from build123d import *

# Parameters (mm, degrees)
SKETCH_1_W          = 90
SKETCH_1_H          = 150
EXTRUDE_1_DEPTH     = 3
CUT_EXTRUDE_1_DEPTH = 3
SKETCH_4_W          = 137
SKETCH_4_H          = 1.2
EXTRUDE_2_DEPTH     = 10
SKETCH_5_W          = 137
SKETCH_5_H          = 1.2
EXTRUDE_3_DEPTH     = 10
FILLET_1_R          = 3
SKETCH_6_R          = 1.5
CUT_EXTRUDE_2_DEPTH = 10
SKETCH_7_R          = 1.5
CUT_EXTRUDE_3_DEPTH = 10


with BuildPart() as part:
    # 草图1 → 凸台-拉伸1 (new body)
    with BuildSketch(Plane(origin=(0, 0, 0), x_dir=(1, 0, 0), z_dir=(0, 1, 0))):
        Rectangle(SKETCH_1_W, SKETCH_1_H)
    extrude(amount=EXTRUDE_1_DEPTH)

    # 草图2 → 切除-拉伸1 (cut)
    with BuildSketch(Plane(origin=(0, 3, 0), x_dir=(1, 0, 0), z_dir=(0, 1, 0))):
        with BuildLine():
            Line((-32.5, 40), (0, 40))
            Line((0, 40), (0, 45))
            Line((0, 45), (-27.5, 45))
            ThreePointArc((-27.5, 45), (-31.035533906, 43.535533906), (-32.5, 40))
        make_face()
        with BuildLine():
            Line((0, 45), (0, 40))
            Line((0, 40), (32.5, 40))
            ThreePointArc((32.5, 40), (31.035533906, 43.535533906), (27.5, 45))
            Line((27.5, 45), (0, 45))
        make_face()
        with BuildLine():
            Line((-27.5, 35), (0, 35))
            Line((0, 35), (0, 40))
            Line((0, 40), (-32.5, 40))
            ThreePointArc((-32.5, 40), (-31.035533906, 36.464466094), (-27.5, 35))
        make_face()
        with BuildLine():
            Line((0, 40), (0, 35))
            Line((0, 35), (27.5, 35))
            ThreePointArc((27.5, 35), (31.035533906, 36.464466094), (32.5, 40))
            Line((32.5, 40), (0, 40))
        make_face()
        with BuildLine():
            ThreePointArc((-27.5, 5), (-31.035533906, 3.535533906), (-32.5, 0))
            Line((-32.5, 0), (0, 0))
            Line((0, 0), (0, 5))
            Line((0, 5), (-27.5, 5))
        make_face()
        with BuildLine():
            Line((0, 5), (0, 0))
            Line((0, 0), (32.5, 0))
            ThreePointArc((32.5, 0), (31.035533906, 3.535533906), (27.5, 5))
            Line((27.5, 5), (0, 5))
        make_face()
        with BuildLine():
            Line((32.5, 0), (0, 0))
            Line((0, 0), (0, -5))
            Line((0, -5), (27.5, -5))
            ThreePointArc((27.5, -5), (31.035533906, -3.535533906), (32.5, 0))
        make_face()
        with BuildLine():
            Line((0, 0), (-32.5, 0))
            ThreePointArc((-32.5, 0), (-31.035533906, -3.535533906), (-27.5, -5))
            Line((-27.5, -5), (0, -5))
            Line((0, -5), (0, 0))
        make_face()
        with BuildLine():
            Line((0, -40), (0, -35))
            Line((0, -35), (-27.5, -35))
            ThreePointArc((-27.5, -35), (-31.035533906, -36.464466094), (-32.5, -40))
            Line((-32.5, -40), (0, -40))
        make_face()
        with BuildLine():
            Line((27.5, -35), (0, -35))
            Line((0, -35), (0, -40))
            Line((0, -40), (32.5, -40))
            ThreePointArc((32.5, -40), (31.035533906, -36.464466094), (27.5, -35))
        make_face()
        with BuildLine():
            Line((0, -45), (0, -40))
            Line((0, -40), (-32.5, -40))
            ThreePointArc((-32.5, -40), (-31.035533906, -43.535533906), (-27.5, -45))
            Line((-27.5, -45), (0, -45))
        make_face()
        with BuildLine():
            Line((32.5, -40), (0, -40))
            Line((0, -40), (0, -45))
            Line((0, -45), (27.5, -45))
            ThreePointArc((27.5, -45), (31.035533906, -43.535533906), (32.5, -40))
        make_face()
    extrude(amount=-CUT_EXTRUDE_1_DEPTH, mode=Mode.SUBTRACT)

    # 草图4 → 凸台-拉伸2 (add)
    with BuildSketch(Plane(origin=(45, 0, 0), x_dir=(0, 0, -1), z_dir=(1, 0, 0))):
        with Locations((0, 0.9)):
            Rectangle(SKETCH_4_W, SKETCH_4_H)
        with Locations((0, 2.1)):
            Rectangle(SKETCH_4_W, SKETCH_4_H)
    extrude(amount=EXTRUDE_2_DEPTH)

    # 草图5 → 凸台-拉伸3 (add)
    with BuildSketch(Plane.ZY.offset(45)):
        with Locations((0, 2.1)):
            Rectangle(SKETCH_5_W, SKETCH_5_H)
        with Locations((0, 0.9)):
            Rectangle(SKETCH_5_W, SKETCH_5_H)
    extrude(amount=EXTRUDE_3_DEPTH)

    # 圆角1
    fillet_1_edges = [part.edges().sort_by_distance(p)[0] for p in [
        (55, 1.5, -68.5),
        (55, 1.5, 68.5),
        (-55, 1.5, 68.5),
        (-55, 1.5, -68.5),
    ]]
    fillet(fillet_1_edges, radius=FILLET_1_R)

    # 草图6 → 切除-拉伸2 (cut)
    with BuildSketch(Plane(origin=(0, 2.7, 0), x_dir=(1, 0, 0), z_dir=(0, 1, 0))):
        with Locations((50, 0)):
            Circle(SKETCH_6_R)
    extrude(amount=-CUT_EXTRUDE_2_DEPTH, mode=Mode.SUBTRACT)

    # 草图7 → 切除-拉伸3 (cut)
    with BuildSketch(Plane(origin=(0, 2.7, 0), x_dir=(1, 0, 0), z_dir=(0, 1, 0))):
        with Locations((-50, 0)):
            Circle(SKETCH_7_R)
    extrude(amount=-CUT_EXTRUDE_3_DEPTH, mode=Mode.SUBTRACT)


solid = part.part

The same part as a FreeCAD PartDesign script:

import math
import FreeCAD as App
import Part
import Sketcher

V = App.Vector
Q = App.Units.Quantity


def edges_at(feature, points):
    """Names of the edges that pass closest to the given points."""
    edges = feature.Shape.Edges
    near = lambda p: min(range(len(edges)), key=lambda i: edges[i].distToShape(Part.Vertex(*p))[0])
    return sorted({f"Edge{near(p) + 1}" for p in points})

doc = App.newDocument("Part")
params = doc.addObject("Spreadsheet::Sheet", "Params")
for row, (alias, value) in enumerate([
    ("sketch1_width", "90 mm"),
    ("sketch1_height", "150 mm"),
    ("pad1_length", "3 mm"),
    ("sketch2_radius", "5 mm"),
    ("sketch2_width", "55 mm"),
    ("pocket1_length", "3 mm"),
    ("sketch3_height", "137 mm"),
    ("sketch3_width", "2.4 mm"),
    ("pad2_length", "10 mm"),
    ("sketch4_height", "137 mm"),
    ("sketch4_width", "2.4 mm"),
    ("pad3_length", "10 mm"),
    ("fillet_radius", "3 mm"),
    ("sketch5_diameter", "3 mm"),
    ("pocket2_length", "10 mm"),
    ("sketch6_diameter", "3 mm"),
    ("pocket3_length", "10 mm"),
], start=1):
    params.set(f"A{row}", alias)
    params.set(f"B{row}", "=" + value)
    params.setAlias(f"B{row}", alias)

body = doc.addObject("PartDesign::Body", "Body")

# Sketch on XZ plane
sketch1 = body.newObject("Sketcher::SketchObject", "Sketch")
sketch1.AttachmentSupport = (doc.getObject("XZ_Plane"), [""])
sketch1.MapMode = "FlatFace"
sketch1.addGeometry([
    Part.LineSegment(V(-45, -75, 0), V(-45, 75, 0)),
    Part.LineSegment(V(-45, 75, 0), V(45, 75, 0)),
    Part.LineSegment(V(45, 75, 0), V(45, -75, 0)),
    Part.LineSegment(V(45, -75, 0), V(-45, -75, 0)),
], False)
sketch1.addConstraint([
    Sketcher.Constraint("Coincident", 0, 2, 1, 1),
    Sketcher.Constraint("Coincident", 1, 2, 2, 1),
    Sketcher.Constraint("Coincident", 2, 2, 3, 1),
    Sketcher.Constraint("Coincident", 3, 2, 0, 1),
    Sketcher.Constraint("Vertical", 0),
    Sketcher.Constraint("Horizontal", 1),
    Sketcher.Constraint("Vertical", 2),
    Sketcher.Constraint("Horizontal", 3),
    Sketcher.Constraint("Symmetric", 0, 2, 2, 2, -1, 1),
    Sketcher.Constraint("DistanceX", 1, 1, 1, 2, Q("90 mm")),
    Sketcher.Constraint("DistanceY", 0, 1, 0, 2, Q("150 mm")),
])
sketch1.setExpression("Constraints[9]", "Params.sketch1_width")
sketch1.setExpression("Constraints[10]", "Params.sketch1_height")
pad1 = body.newObject("PartDesign::Pad", "Pad")
pad1.Profile = sketch1
pad1.setExpression("Length", "Params.pad1_length")
pad1.Reversed = True

# Sketch on XZ plane
sketch2 = body.newObject("Sketcher::SketchObject", "Sketch001")
sketch2.AttachmentSupport = (doc.getObject("XZ_Plane"), [""])
sketch2.MapMode = "FlatFace"
sketch2.AttachmentOffset = App.Placement(V(0, 0, -3), App.Rotation())
sketch2.addGeometry([
    Part.ArcOfCircle(Part.Circle(V(28, -40, 0), V(0, 0, 1), 5), math.radians(-90), math.radians(0)),  # 0
    Part.LineSegment(V(28, -45, 0), V(-28, -45, 0)),  # 1
    Part.ArcOfCircle(Part.Circle(V(-28, -40, 0), V(0, 0, 1), 5), math.radians(180), math.radians(270)),  # 2
    Part.ArcOfCircle(Part.Circle(V(-28, -40, 0), V(0, 0, 1), 5), math.radians(90), math.radians(180)),  # 3
    Part.LineSegment(V(-28, -35, 0), V(28, -35, 0)),  # 4
    Part.ArcOfCircle(Part.Circle(V(28, -40, 0), V(0, 0, 1), 5), math.radians(0), math.radians(90)),  # 5
    Part.ArcOfCircle(Part.Circle(V(-28, 0, 0), V(0, 0, 1), 5), math.radians(180), math.radians(270)),  # 6
    Part.ArcOfCircle(Part.Circle(V(-28, 0, 0), V(0, 0, 1), 5), math.radians(90), math.radians(180)),  # 7
    Part.LineSegment(V(-28, 5, 0), V(28, 5, 0)),  # 8
    Part.ArcOfCircle(Part.Circle(V(28, 0, 0), V(0, 0, 1), 5), math.radians(0), math.radians(90)),  # 9
    Part.ArcOfCircle(Part.Circle(V(28, 0, 0), V(0, 0, 1), 5), math.radians(-90), math.radians(0)),  # 10
    Part.LineSegment(V(28, -5, 0), V(-28, -5, 0)),  # 11
    Part.ArcOfCircle(Part.Circle(V(-28, 40, 0), V(0, 0, 1), 5), math.radians(180), math.radians(270)),  # 12
    Part.ArcOfCircle(Part.Circle(V(-28, 40, 0), V(0, 0, 1), 5), math.radians(90), math.radians(180)),  # 13
    Part.LineSegment(V(-28, 45, 0), V(28, 45, 0)),  # 14
    Part.ArcOfCircle(Part.Circle(V(28, 40, 0), V(0, 0, 1), 5), math.radians(0), math.radians(90)),  # 15
    Part.ArcOfCircle(Part.Circle(V(28, 40, 0), V(0, 0, 1), 5), math.radians(-90), math.radians(0)),  # 16
    Part.LineSegment(V(28, 35, 0), V(-28, 35, 0)),  # 17
], False)
sketch2.addConstraint([
    Sketcher.Constraint("Tangent", 0, 1, 1, 1),
    Sketcher.Constraint("Tangent", 1, 2, 2, 2),
    Sketcher.Constraint("Tangent", 2, 1, 3, 2),
    Sketcher.Constraint("Tangent", 3, 1, 4, 1),
    Sketcher.Constraint("Tangent", 4, 2, 5, 2),
    Sketcher.Constraint("Tangent", 5, 1, 0, 2),
    Sketcher.Constraint("Tangent", 6, 1, 7, 2),
    Sketcher.Constraint("Tangent", 7, 1, 8, 1),
    Sketcher.Constraint("Tangent", 8, 2, 9, 2),
    Sketcher.Constraint("Tangent", 9, 1, 10, 2),
    Sketcher.Constraint("Tangent", 10, 1, 11, 1),
    Sketcher.Constraint("Tangent", 11, 2, 6, 2),
    Sketcher.Constraint("Tangent", 12, 1, 13, 2),
    Sketcher.Constraint("Tangent", 13, 1, 14, 1),
    Sketcher.Constraint("Tangent", 14, 2, 15, 2),
    Sketcher.Constraint("Tangent", 15, 1, 16, 2),
    Sketcher.Constraint("Tangent", 16, 1, 17, 1),
    Sketcher.Constraint("Tangent", 17, 2, 12, 2),
    Sketcher.Constraint("Horizontal", 1),
    Sketcher.Constraint("Horizontal", 4),
    Sketcher.Constraint("Horizontal", 8),
    Sketcher.Constraint("Horizontal", 11),
    Sketcher.Constraint("Horizontal", 14),
    Sketcher.Constraint("Horizontal", 17),
    Sketcher.Constraint("Equal", 0, 2),
    Sketcher.Constraint("Equal", 2, 3),
    Sketcher.Constraint("Equal", 5, 6),
    Sketcher.Constraint("Equal", 6, 7),
    Sketcher.Constraint("Equal", 7, 9),
    Sketcher.Constraint("Equal", 10, 12),
    Sketcher.Constraint("Equal", 12, 13),
    Sketcher.Constraint("Equal", 13, 15),
    Sketcher.Constraint("Symmetric", 6, 3, 9, 3, -1, 1),
    Sketcher.Constraint("Symmetric", 0, 3, 12, 3, -1, 1),
    Sketcher.Constraint("Symmetric", 2, 1, 15, 1, -1, 1),
    Sketcher.Constraint("Symmetric", 2, 1, 5, 1, -2),
    Sketcher.Constraint("PointOnObject", 6, 1, -1),
    Sketcher.Constraint("PointOnObject", 9, 1, -1),
    Sketcher.Constraint("Horizontal", 5, 3, 2, 1),
    Sketcher.Constraint("Horizontal", 16, 3, 12, 1),
    Sketcher.Constraint("Vertical", 3, 3, 6, 3),
    Sketcher.Constraint("Radius", 0, Q("5 mm")),
    Sketcher.Constraint("DistanceX", 1, 2, 1, 1, Q("55 mm")),
    Sketcher.Constraint("DistanceY", 0, 3, -1, 1, Q("40 mm")),
])
sketch2.setExpression("Constraints[41]", "Params.sketch2_radius")
sketch2.setExpression("Constraints[42]", "Params.sketch2_width")
pocket1 = body.newObject("PartDesign::Pocket", "Pocket")
pocket1.Profile = sketch2
pocket1.setExpression("Length", "Params.pocket1_length")
pocket1.Reversed = True

# Sketch on YZ plane
sketch3 = body.newObject("Sketcher::SketchObject", "Sketch002")
sketch3.AttachmentSupport = (doc.getObject("YZ_Plane"), [""])
sketch3.MapMode = "FlatFace"
sketch3.AttachmentOffset = App.Placement(V(0, 0, 45), App.Rotation())
sketch3.addGeometry([
    Part.LineSegment(V(0.3, 68.5, 0), V(0.3, -68.5, 0)),
    Part.LineSegment(V(0.3, -68.5, 0), V(2.7, -68.5, 0)),
    Part.LineSegment(V(2.7, -68.5, 0), V(2.7, 68.5, 0)),
    Part.LineSegment(V(2.7, 68.5, 0), V(0.3, 68.5, 0)),
], False)
sketch3.addConstraint([
    Sketcher.Constraint("Coincident", 0, 2, 1, 1),
    Sketcher.Constraint("Coincident", 1, 2, 2, 1),
    Sketcher.Constraint("Coincident", 2, 2, 3, 1),
    Sketcher.Constraint("Coincident", 3, 2, 0, 1),
    Sketcher.Constraint("Vertical", 0),
    Sketcher.Constraint("Horizontal", 1),
    Sketcher.Constraint("Vertical", 2),
    Sketcher.Constraint("Horizontal", 3),
    Sketcher.Constraint("DistanceY", 0, 2, 0, 1, Q("137 mm")),
    Sketcher.Constraint("DistanceX", 1, 1, 1, 2, Q("2.4 mm")),
    Sketcher.Constraint("DistanceX", -1, 1, 0, 2, Q("0.3 mm")),
    Sketcher.Constraint("DistanceY", 0, 2, -1, 1, Q("68.5 mm")),
])
sketch3.setExpression("Constraints[8]", "Params.sketch3_height")
sketch3.setExpression("Constraints[9]", "Params.sketch3_width")
pad2 = body.newObject("PartDesign::Pad", "Pad001")
pad2.Profile = sketch3
pad2.setExpression("Length", "Params.pad2_length")

# Sketch on YZ plane
sketch4 = body.newObject("Sketcher::SketchObject", "Sketch003")
sketch4.AttachmentSupport = (doc.getObject("YZ_Plane"), [""])
sketch4.MapMode = "FlatFace"
sketch4.AttachmentOffset = App.Placement(V(0, 0, -45), App.Rotation())
sketch4.addGeometry([
    Part.LineSegment(V(2.7, -68.5, 0), V(0.3, -68.5, 0)),
    Part.LineSegment(V(0.3, -68.5, 0), V(0.3, 68.5, 0)),
    Part.LineSegment(V(0.3, 68.5, 0), V(2.7, 68.5, 0)),
    Part.LineSegment(V(2.7, 68.5, 0), V(2.7, -68.5, 0)),
], False)
sketch4.addConstraint([
    Sketcher.Constraint("Coincident", 0, 2, 1, 1),
    Sketcher.Constraint("Coincident", 1, 2, 2, 1),
    Sketcher.Constraint("Coincident", 2, 2, 3, 1),
    Sketcher.Constraint("Coincident", 3, 2, 0, 1),
    Sketcher.Constraint("Horizontal", 0),
    Sketcher.Constraint("Vertical", 1),
    Sketcher.Constraint("Horizontal", 2),
    Sketcher.Constraint("Vertical", 3),
    Sketcher.Constraint("DistanceY", 1, 1, 1, 2, Q("137 mm")),
    Sketcher.Constraint("DistanceX", 0, 2, 0, 1, Q("2.4 mm")),
    Sketcher.Constraint("DistanceX", -1, 1, 0, 2, Q("0.3 mm")),
    Sketcher.Constraint("DistanceY", 0, 2, -1, 1, Q("68.5 mm")),
])
sketch4.setExpression("Constraints[8]", "Params.sketch4_height")
sketch4.setExpression("Constraints[9]", "Params.sketch4_width")
pad3 = body.newObject("PartDesign::Pad", "Pad002")
pad3.Profile = sketch4
pad3.setExpression("Length", "Params.pad3_length")
pad3.Reversed = True
doc.recompute()

fillet = body.newObject("PartDesign::Fillet", "Fillet")
fillet.Base = (pad3, edges_at(pad3, [
    (55, 1.5, -68.5),
    (55, 1.5, 68.5),
    (-55, 1.5, 68.5),
    (-55, 1.5, -68.5),
]))
fillet.setExpression("Radius", "Params.fillet_radius")

# Sketch on XZ plane
sketch5 = body.newObject("Sketcher::SketchObject", "Sketch004")
sketch5.AttachmentSupport = (doc.getObject("XZ_Plane"), [""])
sketch5.MapMode = "FlatFace"
sketch5.AttachmentOffset = App.Placement(V(0, 0, -2.7), App.Rotation())
sketch5.addGeometry(Part.Circle(V(50, 0, 0), V(0, 0, 1), 1.5), False)
sketch5.addConstraint([
    Sketcher.Constraint("PointOnObject", 0, 3, -1),
    Sketcher.Constraint("Diameter", 0, Q("3 mm")),
    Sketcher.Constraint("DistanceX", -1, 1, 0, 3, Q("50 mm")),
])
sketch5.setExpression("Constraints[1]", "Params.sketch5_diameter")
pocket2 = body.newObject("PartDesign::Pocket", "Pocket001")
pocket2.Profile = sketch5
pocket2.setExpression("Length", "Params.pocket2_length")
pocket2.Reversed = True

# Sketch on XZ plane
sketch6 = body.newObject("Sketcher::SketchObject", "Sketch005")
sketch6.AttachmentSupport = (doc.getObject("XZ_Plane"), [""])
sketch6.MapMode = "FlatFace"
sketch6.AttachmentOffset = App.Placement(V(0, 0, -2.7), App.Rotation())
sketch6.addGeometry(Part.Circle(V(-50, 0, 0), V(0, 0, 1), 1.5), False)
sketch6.addConstraint([
    Sketcher.Constraint("PointOnObject", 0, 3, -1),
    Sketcher.Constraint("Diameter", 0, Q("3 mm")),
    Sketcher.Constraint("DistanceX", 0, 3, -1, 1, Q("50 mm")),
])
sketch6.setExpression("Constraints[1]", "Params.sketch6_diameter")
pocket3 = body.newObject("PartDesign::Pocket", "Pocket002")
pocket3.Profile = sketch6
pocket3.setExpression("Length", "Params.pocket3_length")
pocket3.Reversed = True

doc.recompute()
